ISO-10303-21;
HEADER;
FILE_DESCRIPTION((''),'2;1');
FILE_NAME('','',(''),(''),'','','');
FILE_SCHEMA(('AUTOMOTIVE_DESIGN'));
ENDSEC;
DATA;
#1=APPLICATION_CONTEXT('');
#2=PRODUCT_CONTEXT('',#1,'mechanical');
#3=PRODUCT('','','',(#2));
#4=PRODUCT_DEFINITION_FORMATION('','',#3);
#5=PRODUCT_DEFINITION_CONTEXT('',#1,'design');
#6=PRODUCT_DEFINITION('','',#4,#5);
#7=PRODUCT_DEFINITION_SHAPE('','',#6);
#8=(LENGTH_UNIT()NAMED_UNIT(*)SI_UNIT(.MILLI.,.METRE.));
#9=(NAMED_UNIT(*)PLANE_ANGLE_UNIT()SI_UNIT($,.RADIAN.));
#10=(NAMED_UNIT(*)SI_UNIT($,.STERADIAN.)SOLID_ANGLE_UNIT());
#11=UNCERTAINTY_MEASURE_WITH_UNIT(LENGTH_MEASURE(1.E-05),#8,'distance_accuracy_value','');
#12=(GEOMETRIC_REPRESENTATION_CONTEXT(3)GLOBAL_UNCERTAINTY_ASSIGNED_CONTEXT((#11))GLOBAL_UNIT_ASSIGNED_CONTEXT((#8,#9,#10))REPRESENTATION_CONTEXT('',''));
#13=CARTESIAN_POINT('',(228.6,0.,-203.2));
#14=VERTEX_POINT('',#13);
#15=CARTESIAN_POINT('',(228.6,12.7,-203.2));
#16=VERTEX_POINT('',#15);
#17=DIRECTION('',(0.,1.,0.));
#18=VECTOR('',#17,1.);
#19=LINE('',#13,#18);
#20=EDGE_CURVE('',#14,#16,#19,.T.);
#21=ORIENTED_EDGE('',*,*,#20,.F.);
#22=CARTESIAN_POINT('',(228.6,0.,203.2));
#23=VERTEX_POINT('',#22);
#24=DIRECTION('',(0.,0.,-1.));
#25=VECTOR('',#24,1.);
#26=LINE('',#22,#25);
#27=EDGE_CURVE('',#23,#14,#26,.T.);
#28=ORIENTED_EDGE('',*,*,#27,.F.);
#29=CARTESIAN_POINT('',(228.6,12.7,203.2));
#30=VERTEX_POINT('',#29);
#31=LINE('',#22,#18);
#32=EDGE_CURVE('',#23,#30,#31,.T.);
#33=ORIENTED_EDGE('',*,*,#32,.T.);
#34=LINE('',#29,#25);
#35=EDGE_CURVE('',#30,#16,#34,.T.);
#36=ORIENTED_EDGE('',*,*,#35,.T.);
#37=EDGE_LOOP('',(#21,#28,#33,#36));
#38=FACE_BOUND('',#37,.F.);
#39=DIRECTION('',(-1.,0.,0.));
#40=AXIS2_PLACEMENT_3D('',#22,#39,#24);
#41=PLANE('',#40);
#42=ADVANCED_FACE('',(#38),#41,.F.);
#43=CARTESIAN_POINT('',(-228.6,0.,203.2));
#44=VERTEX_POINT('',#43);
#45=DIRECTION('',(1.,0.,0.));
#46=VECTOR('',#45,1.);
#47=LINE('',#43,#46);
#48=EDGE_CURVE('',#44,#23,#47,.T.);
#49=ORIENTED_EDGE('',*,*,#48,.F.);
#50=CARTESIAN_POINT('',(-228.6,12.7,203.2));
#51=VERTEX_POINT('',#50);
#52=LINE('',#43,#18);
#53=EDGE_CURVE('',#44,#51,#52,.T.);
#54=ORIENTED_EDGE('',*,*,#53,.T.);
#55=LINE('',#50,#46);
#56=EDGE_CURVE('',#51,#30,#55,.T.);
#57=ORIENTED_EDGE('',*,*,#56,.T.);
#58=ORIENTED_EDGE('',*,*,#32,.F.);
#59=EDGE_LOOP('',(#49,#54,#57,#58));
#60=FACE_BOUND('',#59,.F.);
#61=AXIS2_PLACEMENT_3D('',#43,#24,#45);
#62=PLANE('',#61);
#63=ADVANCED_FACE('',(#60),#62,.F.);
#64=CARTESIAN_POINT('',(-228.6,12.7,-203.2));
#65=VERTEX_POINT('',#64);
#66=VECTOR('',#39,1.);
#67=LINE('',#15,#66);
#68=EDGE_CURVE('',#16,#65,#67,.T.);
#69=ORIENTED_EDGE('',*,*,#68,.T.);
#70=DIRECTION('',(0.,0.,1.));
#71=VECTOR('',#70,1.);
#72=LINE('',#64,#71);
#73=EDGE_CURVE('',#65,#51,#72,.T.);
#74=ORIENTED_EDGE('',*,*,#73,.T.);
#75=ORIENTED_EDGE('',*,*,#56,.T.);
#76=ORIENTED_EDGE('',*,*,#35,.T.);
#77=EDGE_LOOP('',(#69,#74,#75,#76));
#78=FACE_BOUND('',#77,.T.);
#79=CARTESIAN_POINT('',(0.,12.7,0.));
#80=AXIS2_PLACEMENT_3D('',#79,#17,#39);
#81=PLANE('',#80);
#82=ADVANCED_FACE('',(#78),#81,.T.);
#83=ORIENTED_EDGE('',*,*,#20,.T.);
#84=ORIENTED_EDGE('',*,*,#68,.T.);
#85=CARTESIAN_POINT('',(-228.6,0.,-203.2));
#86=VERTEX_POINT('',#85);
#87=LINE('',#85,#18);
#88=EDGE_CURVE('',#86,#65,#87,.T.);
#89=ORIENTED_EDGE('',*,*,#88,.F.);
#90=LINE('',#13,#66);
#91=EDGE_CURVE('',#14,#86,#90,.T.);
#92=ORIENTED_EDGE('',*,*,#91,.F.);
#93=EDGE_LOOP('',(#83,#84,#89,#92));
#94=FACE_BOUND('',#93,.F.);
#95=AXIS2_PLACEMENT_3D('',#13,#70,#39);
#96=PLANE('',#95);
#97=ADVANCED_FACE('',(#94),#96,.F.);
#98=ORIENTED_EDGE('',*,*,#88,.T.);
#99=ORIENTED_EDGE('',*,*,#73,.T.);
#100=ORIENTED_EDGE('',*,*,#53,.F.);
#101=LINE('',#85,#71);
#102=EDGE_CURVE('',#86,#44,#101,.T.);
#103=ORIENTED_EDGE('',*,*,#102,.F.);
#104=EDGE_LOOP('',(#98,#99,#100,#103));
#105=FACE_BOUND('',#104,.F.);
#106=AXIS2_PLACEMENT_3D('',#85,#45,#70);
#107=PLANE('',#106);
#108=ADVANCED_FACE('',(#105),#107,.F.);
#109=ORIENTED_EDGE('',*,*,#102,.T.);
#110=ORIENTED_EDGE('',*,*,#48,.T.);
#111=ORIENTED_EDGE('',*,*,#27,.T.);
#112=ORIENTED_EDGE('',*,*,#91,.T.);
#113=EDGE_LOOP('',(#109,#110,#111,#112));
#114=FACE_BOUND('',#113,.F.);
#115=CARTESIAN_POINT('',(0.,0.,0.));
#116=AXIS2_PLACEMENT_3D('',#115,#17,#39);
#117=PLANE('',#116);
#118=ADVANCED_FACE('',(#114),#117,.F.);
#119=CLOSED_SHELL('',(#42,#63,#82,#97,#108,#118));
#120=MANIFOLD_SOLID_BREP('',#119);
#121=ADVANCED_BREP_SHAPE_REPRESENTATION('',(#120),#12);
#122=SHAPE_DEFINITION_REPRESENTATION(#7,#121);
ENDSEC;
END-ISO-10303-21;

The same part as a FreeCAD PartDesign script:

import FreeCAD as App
import Part
import Sketcher
from FreeCAD import Vector
Q = App.Units.Quantity

doc = App.newDocument("Part")
params = doc.addObject("Spreadsheet::Sheet", "Params")
for row, (alias, value) in enumerate([
    ("sketch1_width", "18 in"),
    ("sketch1_height", "16 in"),
    ("pad1_length", "0.5 in"),
], start=1):
    params.set(f"A{row}", alias)
    params.set(f"B{row}", "=" + value)
    params.setAlias(f"B{row}", alias)

body = doc.addObject("PartDesign::Body", "Body")

# Sketch on XZ plane
sketch1 = body.newObject("Sketcher::SketchObject", "Sketch")
sketch1.AttachmentSupport = (doc.getObject("XZ_Plane"), [""])
sketch1.MapMode = "FlatFace"
sketch1.addGeometry([
    Part.LineSegment(Vector(-228.6, -203.2, 0), Vector(-228.6, 203.2, 0)),
    Part.LineSegment(Vector(-228.6, 203.2, 0), Vector(228.6, 203.2, 0)),
    Part.LineSegment(Vector(228.6, 203.2, 0), Vector(228.6, -203.2, 0)),
    Part.LineSegment(Vector(228.6, -203.2, 0), Vector(-228.6, -203.2, 0)),
], False)
sketch1.addConstraint([
    Sketcher.Constraint("Coincident", 0, 2, 1, 1),
    Sketcher.Constraint("Coincident", 1, 2, 2, 1),
    Sketcher.Constraint("Coincident", 2, 2, 3, 1),
    Sketcher.Constraint("Coincident", 3, 2, 0, 1),
    Sketcher.Constraint("Vertical", 0),
    Sketcher.Constraint("Horizontal", 1),
    Sketcher.Constraint("Vertical", 2),
    Sketcher.Constraint("Horizontal", 3),
    Sketcher.Constraint("Symmetric", 0, 2, 2, 2, -1, 1),
    Sketcher.Constraint("DistanceX", 1, 1, 1, 2, Q("18 in")),
    Sketcher.Constraint("DistanceY", 0, 1, 0, 2, Q("16 in")),
])
sketch1.setExpression("Constraints[9]", "Params.sketch1_width")
sketch1.setExpression("Constraints[10]", "Params.sketch1_height")
pad1 = body.newObject("PartDesign::Pad", "Pad")
pad1.Profile = sketch1
pad1.setExpression("Length", "Params.pad1_length")
pad1.Reversed = True

doc.recompute()
